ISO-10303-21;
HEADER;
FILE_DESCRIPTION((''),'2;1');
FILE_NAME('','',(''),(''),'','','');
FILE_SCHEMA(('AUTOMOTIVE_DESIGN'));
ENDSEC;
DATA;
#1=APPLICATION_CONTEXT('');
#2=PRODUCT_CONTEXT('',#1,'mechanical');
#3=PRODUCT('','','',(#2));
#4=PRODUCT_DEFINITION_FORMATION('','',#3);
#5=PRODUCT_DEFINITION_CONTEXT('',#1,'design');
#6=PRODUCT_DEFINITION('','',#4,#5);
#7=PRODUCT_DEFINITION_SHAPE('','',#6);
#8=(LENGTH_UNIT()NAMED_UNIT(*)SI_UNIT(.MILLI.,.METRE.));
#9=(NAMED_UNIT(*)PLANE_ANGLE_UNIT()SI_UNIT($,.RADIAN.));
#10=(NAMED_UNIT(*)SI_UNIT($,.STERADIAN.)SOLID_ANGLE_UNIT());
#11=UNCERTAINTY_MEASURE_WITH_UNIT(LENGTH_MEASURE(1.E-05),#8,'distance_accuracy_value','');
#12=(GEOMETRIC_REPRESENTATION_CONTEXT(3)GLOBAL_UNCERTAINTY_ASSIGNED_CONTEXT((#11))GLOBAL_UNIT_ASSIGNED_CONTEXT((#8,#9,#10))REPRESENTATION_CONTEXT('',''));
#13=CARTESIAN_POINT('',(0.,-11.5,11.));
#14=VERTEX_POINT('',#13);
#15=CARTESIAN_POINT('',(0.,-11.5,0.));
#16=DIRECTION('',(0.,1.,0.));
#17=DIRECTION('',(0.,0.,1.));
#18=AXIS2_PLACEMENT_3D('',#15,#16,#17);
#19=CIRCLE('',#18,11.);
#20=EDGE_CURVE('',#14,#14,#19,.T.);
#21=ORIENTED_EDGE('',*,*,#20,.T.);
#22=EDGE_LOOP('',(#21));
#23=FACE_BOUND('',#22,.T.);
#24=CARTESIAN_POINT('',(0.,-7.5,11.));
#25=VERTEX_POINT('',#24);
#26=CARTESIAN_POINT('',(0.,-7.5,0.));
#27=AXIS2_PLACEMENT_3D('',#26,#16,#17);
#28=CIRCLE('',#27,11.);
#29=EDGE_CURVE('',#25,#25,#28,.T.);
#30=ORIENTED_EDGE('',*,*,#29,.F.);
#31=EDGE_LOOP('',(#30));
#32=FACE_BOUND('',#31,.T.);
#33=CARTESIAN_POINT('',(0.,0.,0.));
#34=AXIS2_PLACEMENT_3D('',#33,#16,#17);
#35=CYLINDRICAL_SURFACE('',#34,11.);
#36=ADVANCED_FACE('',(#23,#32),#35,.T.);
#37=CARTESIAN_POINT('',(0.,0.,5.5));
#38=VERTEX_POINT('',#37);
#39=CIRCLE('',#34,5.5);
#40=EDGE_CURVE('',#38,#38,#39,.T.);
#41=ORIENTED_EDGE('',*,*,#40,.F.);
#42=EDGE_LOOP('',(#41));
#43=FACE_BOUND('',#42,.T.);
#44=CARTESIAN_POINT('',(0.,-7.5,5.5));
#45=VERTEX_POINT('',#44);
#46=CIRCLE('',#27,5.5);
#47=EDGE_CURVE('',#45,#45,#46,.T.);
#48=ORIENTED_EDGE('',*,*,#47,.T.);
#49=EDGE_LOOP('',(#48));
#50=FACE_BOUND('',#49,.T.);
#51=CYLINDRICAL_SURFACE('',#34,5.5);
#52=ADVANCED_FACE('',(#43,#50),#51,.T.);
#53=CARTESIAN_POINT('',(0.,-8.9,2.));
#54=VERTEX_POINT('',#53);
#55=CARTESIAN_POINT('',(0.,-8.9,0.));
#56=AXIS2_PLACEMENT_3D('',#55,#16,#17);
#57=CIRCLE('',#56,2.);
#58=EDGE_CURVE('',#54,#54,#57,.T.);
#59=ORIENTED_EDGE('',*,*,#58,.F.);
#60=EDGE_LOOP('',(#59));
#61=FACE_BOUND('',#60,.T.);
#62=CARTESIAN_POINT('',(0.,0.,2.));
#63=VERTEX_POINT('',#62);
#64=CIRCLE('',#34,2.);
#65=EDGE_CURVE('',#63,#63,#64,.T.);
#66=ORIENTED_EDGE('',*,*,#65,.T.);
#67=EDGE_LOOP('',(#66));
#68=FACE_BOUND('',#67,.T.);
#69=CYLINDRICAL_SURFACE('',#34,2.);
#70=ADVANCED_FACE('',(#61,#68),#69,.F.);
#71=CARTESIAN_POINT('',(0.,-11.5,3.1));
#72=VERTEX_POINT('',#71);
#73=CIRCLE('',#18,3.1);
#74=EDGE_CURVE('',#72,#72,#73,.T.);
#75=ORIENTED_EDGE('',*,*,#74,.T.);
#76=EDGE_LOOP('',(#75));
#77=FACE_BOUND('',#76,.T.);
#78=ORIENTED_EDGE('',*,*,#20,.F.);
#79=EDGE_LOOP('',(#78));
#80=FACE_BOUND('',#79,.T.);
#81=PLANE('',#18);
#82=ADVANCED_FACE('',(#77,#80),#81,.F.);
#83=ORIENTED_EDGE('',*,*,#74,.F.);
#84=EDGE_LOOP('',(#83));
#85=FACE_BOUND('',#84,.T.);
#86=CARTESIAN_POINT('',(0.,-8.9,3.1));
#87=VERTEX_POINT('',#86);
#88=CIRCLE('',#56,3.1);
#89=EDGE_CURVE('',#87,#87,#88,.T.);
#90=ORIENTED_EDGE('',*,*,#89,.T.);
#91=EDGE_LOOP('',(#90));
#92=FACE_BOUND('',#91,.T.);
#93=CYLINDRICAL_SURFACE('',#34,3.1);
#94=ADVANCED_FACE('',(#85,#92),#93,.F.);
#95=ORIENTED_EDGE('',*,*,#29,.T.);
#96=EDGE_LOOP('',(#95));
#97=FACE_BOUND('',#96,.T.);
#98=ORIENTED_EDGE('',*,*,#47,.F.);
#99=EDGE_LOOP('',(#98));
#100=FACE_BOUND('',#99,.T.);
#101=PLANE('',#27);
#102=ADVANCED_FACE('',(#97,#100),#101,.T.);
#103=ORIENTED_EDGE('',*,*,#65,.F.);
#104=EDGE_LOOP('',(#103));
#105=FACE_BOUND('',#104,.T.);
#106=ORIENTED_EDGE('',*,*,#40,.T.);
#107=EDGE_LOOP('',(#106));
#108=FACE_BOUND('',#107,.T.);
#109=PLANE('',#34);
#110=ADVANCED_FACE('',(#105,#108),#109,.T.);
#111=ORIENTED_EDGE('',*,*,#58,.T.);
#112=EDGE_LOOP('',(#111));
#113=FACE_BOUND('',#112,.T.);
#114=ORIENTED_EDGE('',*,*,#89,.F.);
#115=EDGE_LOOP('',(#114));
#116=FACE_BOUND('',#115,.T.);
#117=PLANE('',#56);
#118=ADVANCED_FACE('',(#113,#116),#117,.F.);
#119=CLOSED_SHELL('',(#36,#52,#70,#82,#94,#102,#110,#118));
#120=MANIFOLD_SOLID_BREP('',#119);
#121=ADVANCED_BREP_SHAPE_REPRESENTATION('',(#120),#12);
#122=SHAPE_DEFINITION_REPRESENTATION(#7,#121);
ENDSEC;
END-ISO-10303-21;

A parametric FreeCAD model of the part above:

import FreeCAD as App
import Part
import Sketcher


def add_polygon(sketch, points):
    """Adds a closed chain of lines whose ends are joined by coincident constraints."""
    first, n = sketch.GeometryCount, len(points)
    for a, b in zip(points, points[1:] + points[:1]):
        sketch.addGeometry(Part.LineSegment(App.Vector(*a, 0), App.Vector(*b, 0)), False)
    for i in range(n):
        sketch.addConstraint(Sketcher.Constraint("Coincident", first + i, 2, first + (i + 1) % n, 1))

doc = App.newDocument("Part")
body = doc.addObject("PartDesign::Body", "Body")

# Sketch on YZ plane
sketch1 = body.newObject("Sketcher::SketchObject", "Sketch")
sketch1.AttachmentSupport = (doc.getObject("YZ_Plane"), [""])
sketch1.MapMode = "FlatFace"
add_polygon(sketch1, [(0, -2), (-8.9, -2), (-8.9, -3.1), (-11.5, -3.1), (-11.5, -11), (-7.5, -11), (-7.5, -5.5), (0, -5.5)])  # lines 0-7
sketch1.addConstraint([
    Sketcher.Constraint("Horizontal", 0),
    Sketcher.Constraint("Vertical", 1),
    Sketcher.Constraint("Horizontal", 2),
    Sketcher.Constraint("Vertical", 3),
    Sketcher.Constraint("Horizontal", 4),
    Sketcher.Constraint("Vertical", 5),
    Sketcher.Constraint("Horizontal", 6),
    Sketcher.Constraint("Vertical", 7),
    Sketcher.Constraint("PointOnObject", 6, 2, -2),
    Sketcher.Constraint("DistanceX", 4, 1, 4, 2, 4.0),
    Sketcher.Constraint("DistanceX", 0, 2, 0, 1, 8.9),
    Sketcher.Constraint("DistanceX", 2, 2, 2, 1, 2.6),
    Sketcher.Constraint("DistanceY", 1, 2, 1, 1, 1.1),
    Sketcher.Constraint("DistanceY", 3, 2, 3, 1, 7.9),
    Sketcher.Constraint("DistanceY", 5, 1, 5, 2, 5.5),
    Sketcher.Constraint("DistanceY", 0, 2, -1, 1, 2.0),
])
revolution = body.newObject("PartDesign::Revolution", "Revolution")
revolution.Profile = sketch1
revolution.ReferenceAxis = (sketch1, ["H_Axis"])
revolution.Angle = 360

doc.recompute()
